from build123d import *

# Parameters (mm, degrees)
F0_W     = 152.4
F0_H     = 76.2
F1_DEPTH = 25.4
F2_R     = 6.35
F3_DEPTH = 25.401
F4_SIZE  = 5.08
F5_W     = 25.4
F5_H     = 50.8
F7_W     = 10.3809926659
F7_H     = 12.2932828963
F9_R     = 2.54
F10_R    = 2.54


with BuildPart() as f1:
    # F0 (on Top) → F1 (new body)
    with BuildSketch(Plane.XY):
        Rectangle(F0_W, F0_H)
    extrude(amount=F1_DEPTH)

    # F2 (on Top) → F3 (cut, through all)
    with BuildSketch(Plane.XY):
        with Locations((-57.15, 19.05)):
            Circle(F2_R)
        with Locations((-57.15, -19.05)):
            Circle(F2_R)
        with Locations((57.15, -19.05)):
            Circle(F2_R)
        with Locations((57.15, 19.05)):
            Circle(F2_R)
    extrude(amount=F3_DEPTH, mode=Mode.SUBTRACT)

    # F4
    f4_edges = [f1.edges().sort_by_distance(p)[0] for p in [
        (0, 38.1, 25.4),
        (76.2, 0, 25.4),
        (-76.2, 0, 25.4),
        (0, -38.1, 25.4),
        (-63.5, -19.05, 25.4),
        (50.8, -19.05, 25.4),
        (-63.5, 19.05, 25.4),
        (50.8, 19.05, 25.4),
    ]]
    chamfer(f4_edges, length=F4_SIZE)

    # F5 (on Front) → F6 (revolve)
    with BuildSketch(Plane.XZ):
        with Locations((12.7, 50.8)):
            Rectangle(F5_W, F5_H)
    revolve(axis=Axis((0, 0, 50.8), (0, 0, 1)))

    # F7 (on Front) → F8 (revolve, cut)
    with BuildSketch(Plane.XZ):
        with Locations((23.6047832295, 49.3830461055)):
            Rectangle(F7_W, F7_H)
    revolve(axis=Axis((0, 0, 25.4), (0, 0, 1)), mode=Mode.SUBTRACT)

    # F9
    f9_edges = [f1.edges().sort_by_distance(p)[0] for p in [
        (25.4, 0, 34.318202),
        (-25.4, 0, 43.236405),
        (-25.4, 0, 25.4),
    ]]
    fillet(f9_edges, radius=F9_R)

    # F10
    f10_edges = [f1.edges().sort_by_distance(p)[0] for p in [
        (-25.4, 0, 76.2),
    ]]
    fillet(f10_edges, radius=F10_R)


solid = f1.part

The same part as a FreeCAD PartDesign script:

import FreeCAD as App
import Part
import Sketcher
from FreeCAD import Vector
Q = App.Units.Quantity


def edges_at(feature, points):
    """Names of the edges that pass closest to the given points."""
    edges = feature.Shape.Edges
    near = lambda p: min(range(len(edges)), key=lambda i: edges[i].distToShape(Part.Vertex(*p))[0])
    return sorted({f"Edge{near(p) + 1}" for p in points})

doc = App.newDocument("Part")
params = doc.addObject("Spreadsheet::Sheet", "Params")
for row, (alias, value) in enumerate([
    ("sketch1_width", "6 in"),
    ("sketch1_height", "3 in"),
    ("pad1_length", "1 in"),
    ("sketch2_diameter", "0.5 in"),
    ("chamfer_size", "0.2 in"),
    ("sketch3_width", "1 in"),
    ("sketch3_height", "2 in"),
    ("revolution_angle", "360 deg"),
    ("groove_angle", "360 deg"),
    ("fillet_radius", "0.1 in"),
    ("fillet2_radius", "0.1 in"),
], start=1):
    params.set(f"A{row}", alias)
    params.set(f"B{row}", "=" + value)
    params.setAlias(f"B{row}", alias)

body = doc.addObject("PartDesign::Body", "Body")

sketch1 = body.newObject("Sketcher::SketchObject", "Sketch")
sketch1.AttachmentSupport = (doc.getObject("XY_Plane"), [""])
sketch1.MapMode = "FlatFace"
sketch1.addGeometry([
    Part.LineSegment(Vector(-76, 38, 0), Vector(-76, -38, 0)),
    Part.LineSegment(Vector(-76, -38, 0), Vector(76, -38, 0)),
    Part.LineSegment(Vector(76, -38, 0), Vector(76, 38, 0)),
    Part.LineSegment(Vector(76, 38, 0), Vector(-76, 38, 0)),
], False)
sketch1.addConstraint([
    Sketcher.Constraint("Coincident", 0, 2, 1, 1),
    Sketcher.Constraint("Coincident", 1, 2, 2, 1),
    Sketcher.Constraint("Coincident", 2, 2, 3, 1),
    Sketcher.Constraint("Coincident", 3, 2, 0, 1),
    Sketcher.Constraint("Vertical", 0),
    Sketcher.Constraint("Horizontal", 1),
    Sketcher.Constraint("Vertical", 2),
    Sketcher.Constraint("Horizontal", 3),
    Sketcher.Constraint("Symmetric", 0, 2, 2, 2, -1, 1),
    Sketcher.Constraint("DistanceX", 1, 1, 1, 2, Q("6 in")),
    Sketcher.Constraint("DistanceY", 0, 2, 0, 1, Q("3 in")),
])
sketch1.setExpression("Constraints[9]", "Params.sketch1_width")
sketch1.setExpression("Constraints[10]", "Params.sketch1_height")
pad1 = body.newObject("PartDesign::Pad", "Pad")
pad1.Profile = sketch1
pad1.setExpression("Length", "Params.pad1_length")

sketch2 = body.newObject("Sketcher::SketchObject", "Sketch001")
sketch2.AttachmentSupport = (doc.getObject("XY_Plane"), [""])
sketch2.MapMode = "FlatFace"
sketch2.addGeometry([
    Part.Circle(Vector(-57, 19, 0), Vector(0, 0, 1), 6),
    Part.Circle(Vector(-57, -19, 0), Vector(0, 0, 1), 6),
    Part.Circle(Vector(57, -19, 0), Vector(0, 0, 1), 6),
    Part.Circle(Vector(57, 19, 0), Vector(0, 0, 1), 6),
], False)
sketch2.addConstraint([
    Sketcher.Constraint("Equal", 0, 1),
    Sketcher.Constraint("Equal", 1, 2),
    Sketcher.Constraint("Equal", 2, 3),
    Sketcher.Constraint("Symmetric", 0, 3, 2, 3, -1, 1),
    Sketcher.Constraint("Symmetric", 1, 3, 3, 3, -1, 1),
    Sketcher.Constraint("Symmetric", 1, 3, 2, 3, -2),
    Sketcher.Constraint("Diameter", 0, Q("0.5 in")),
    Sketcher.Constraint("DistanceY", 1, 3, 0, 3, Q("1.5 in")),
    Sketcher.Constraint("DistanceX", 1, 3, 2, 3, Q("4.5 in")),
])
sketch2.setExpression("Constraints[6]", "Params.sketch2_diameter")
pocket1 = body.newObject("PartDesign::Pocket", "Pocket")
pocket1.Profile = sketch2
pocket1.Type = "ThroughAll"
pocket1.Reversed = True
doc.recompute()

chamfer = body.newObject("PartDesign::Chamfer", "Chamfer")
chamfer.Base = (pocket1, edges_at(pocket1, [
    (0, 38.1, 25.4),
    (76.2, 0, 25.4),
    (-76.2, 0, 25.4),
    (0, -38.1, 25.4),
    (-63.5, -19.05, 25.4),
    (50.8, -19.05, 25.4),
    (-63.5, 19.05, 25.4),
    (50.8, 19.05, 25.4),
]))
chamfer.setExpression("Size", "Params.chamfer_size")

sketch3 = body.newObject("Sketcher::SketchObject", "Sketch002")
sketch3.AttachmentSupport = (doc.getObject("XZ_Plane"), [""])
sketch3.MapMode = "FlatFace"
sketch3.addGeometry([
    Part.LineSegment(Vector(0, 76, 0), Vector(0, 25, 0)),
    Part.LineSegment(Vector(0, 25, 0), Vector(25, 25, 0)),
    Part.LineSegment(Vector(25, 25, 0), Vector(25, 76, 0)),
    Part.LineSegment(Vector(25, 76, 0), Vector(0, 76, 0)),
], False)
sketch3.addConstraint([
    Sketcher.Constraint("Coincident", 0, 2, 1, 1),
    Sketcher.Constraint("Coincident", 1, 2, 2, 1),
    Sketcher.Constraint("Coincident", 2, 2, 3, 1),
    Sketcher.Constraint("Coincident", 3, 2, 0, 1),
    Sketcher.Constraint("Vertical", 0),
    Sketcher.Constraint("Horizontal", 1),
    Sketcher.Constraint("Vertical", 2),
    Sketcher.Constraint("Horizontal", 3),
    Sketcher.Constraint("PointOnObject", 0, 2, -2),
    Sketcher.Constraint("DistanceX", 1, 1, 1, 2, Q("1 in")),
    Sketcher.Constraint("DistanceY", 0, 2, 0, 1, Q("2 in")),
    Sketcher.Constraint("DistanceY", -1, 1, 0, 2, Q("1 in")),
])
sketch3.setExpression("Constraints[9]", "Params.sketch3_width")
sketch3.setExpression("Constraints[10]", "Params.sketch3_height")
revolution = body.newObject("PartDesign::Revolution", "Revolution")
revolution.Profile = sketch3
revolution.ReferenceAxis = (sketch3, ["V_Axis"])
revolution.setExpression("Angle", "Params.revolution_angle")

sketch4 = body.newObject("Sketcher::SketchObject", "Sketch003")
sketch4.AttachmentSupport = (doc.getObject("XZ_Plane"), [""])
sketch4.MapMode = "FlatFace"
sketch4.addGeometry([
    Part.LineSegment(Vector(18, 56, 0), Vector(18, 43, 0)),
    Part.LineSegment(Vector(18, 43, 0), Vector(29, 43, 0)),
    Part.LineSegment(Vector(29, 43, 0), Vector(29, 56, 0)),
    Part.LineSegment(Vector(29, 56, 0), Vector(18, 56, 0)),
], False)
sketch4.addConstraint([
    Sketcher.Constraint("Coincident", 0, 2, 1, 1),
    Sketcher.Constraint("Coincident", 1, 2, 2, 1),
    Sketcher.Constraint("Coincident", 2, 2, 3, 1),
    Sketcher.Constraint("Coincident", 3, 2, 0, 1),
    Sketcher.Constraint("Vertical", 0),
    Sketcher.Constraint("Horizontal", 1),
    Sketcher.Constraint("Vertical", 2),
    Sketcher.Constraint("Horizontal", 3),
    Sketcher.Constraint("DistanceX", 1, 1, 1, 2, Q("10.380993 mm")),
    Sketcher.Constraint("DistanceY", 0, 2, 0, 1, Q("12.293283 mm")),
    Sketcher.Constraint("DistanceX", -1, 1, 1, 2, Q("28.79528 mm")),
    Sketcher.Constraint("DistanceY", -1, 1, 0, 2, Q("43.236405 mm")),
])
groove = body.newObject("PartDesign::Groove", "Groove")
groove.Profile = sketch4
groove.ReferenceAxis = (sketch4, ["V_Axis"])
groove.setExpression("Angle", "Params.groove_angle")
doc.recompute()

fillet = body.newObject("PartDesign::Fillet", "Fillet")
fillet.Base = (groove, edges_at(groove, [(25.4, 0, 34.318), (-25.4, 0, 43.236), (-25.4, 0, 25.4)]))
fillet.setExpression("Radius", "Params.fillet_radius")
doc.recompute()

fillet2 = body.newObject("PartDesign::Fillet", "Fillet001")
fillet2.Base = (fillet, edges_at(fillet, [(-25.4, 0, 76.2)]))
fillet2.setExpression("Radius", "Params.fillet2_radius")

doc.recompute()
